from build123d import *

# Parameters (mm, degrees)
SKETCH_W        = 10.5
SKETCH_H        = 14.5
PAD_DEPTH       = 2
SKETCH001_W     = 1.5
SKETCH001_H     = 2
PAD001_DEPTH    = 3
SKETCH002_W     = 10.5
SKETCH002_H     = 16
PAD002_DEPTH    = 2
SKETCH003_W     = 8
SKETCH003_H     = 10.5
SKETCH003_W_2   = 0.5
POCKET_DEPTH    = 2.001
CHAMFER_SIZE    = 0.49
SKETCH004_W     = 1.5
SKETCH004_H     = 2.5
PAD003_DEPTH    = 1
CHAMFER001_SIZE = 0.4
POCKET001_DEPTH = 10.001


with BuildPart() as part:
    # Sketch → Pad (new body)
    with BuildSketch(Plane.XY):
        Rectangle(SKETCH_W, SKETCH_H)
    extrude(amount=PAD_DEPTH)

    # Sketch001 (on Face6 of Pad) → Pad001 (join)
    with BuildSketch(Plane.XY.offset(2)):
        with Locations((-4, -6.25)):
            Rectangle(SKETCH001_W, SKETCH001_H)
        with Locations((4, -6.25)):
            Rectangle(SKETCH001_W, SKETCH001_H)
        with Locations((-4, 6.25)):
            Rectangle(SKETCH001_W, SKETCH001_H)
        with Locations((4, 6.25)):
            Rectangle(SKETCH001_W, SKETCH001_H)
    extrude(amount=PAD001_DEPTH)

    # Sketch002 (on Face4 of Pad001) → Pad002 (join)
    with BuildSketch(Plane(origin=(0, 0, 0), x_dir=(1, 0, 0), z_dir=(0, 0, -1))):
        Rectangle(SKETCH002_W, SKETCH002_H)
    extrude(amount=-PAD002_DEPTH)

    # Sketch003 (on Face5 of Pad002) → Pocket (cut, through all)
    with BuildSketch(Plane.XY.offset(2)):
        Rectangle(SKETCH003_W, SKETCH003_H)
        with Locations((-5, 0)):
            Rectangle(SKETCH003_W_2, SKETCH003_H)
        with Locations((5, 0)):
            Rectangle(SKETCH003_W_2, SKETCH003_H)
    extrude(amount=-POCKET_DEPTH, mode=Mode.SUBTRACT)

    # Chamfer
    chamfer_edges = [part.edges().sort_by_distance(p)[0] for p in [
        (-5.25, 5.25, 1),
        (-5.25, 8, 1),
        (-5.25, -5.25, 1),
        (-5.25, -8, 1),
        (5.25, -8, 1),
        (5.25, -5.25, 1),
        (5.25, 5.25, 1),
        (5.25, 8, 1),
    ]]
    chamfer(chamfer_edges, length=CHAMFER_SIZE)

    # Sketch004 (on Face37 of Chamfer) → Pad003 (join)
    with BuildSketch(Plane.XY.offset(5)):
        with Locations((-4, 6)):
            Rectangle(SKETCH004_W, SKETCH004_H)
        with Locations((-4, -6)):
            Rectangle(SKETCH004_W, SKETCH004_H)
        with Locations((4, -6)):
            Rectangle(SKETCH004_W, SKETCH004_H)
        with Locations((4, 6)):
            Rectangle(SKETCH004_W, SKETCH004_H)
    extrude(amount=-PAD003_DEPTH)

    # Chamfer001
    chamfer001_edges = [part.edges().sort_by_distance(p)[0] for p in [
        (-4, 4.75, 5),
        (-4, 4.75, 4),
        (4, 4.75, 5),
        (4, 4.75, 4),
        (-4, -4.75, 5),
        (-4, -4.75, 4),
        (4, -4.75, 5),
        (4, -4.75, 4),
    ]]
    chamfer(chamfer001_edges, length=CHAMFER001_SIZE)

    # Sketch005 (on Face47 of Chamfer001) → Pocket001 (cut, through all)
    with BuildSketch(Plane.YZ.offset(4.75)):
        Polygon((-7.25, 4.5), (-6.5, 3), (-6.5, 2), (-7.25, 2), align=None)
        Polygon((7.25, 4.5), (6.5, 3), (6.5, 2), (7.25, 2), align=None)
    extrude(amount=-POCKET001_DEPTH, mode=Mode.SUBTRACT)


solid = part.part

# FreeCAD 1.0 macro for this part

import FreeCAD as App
import Part
import Sketcher


def edges_at(feature, points):
    """Names of the edges that pass closest to the given points."""
    edges = feature.Shape.Edges
    near = lambda p: min(range(len(edges)), key=lambda i: edges[i].distToShape(Part.Vertex(*p))[0])
    return sorted({f"Edge{near(p) + 1}" for p in points})

doc = App.newDocument("Part")
body = doc.addObject("PartDesign::Body", "Body")

sketch1 = body.newObject("Sketcher::SketchObject", "Sketch")
sketch1.AttachmentSupport = (doc.getObject("XY_Plane"), [""])
sketch1.MapMode = "FlatFace"
sketch1.addGeometry([
    Part.LineSegment(App.Vector(-5, 7, 0), App.Vector(-5, -7, 0)),
    Part.LineSegment(App.Vector(-5, -7, 0), App.Vector(5, -7, 0)),
    Part.LineSegment(App.Vector(5, -7, 0), App.Vector(5, 7, 0)),
    Part.LineSegment(App.Vector(5, 7, 0), App.Vector(-5, 7, 0)),
], False)
sketch1.addConstraint([
    Sketcher.Constraint("Coincident", 0, 2, 1, 1),
    Sketcher.Constraint("Coincident", 1, 2, 2, 1),
    Sketcher.Constraint("Coincident", 2, 2, 3, 1),
    Sketcher.Constraint("Coincident", 3, 2, 0, 1),
    Sketcher.Constraint("Vertical", 0),
    Sketcher.Constraint("Horizontal", 1),
    Sketcher.Constraint("Vertical", 2),
    Sketcher.Constraint("Horizontal", 3),
    Sketcher.Constraint("Symmetric", 0, 2, 2, 2, -1, 1),
    Sketcher.Constraint("DistanceX", 1, 1, 1, 2, 10.5),
    Sketcher.Constraint("DistanceY", 0, 2, 0, 1, 14.5),
])
pad1 = body.newObject("PartDesign::Pad", "Pad")
pad1.Profile = sketch1
pad1.Length = 2

sketch2 = body.newObject("Sketcher::SketchObject", "Sketch001")
sketch2.AttachmentSupport = (doc.getObject("XY_Plane"), [""])
sketch2.MapMode = "FlatFace"
sketch2.AttachmentOffset = App.Placement(App.Vector(0, 0, 2), App.Rotation())
sketch2.addGeometry([
    Part.LineSegment(App.Vector(-4.8, -5.2, 0), App.Vector(-4.8, -7.2, 0)),
    Part.LineSegment(App.Vector(-4.8, -7.2, 0), App.Vector(-3.2, -7.2, 0)),
    Part.LineSegment(App.Vector(-3.2, -7.2, 0), App.Vector(-3.2, -5.2, 0)),
    Part.LineSegment(App.Vector(-3.2, -5.2, 0), App.Vector(-4.8, -5.2, 0)),
    Part.LineSegment(App.Vector(3.2, -5.2, 0), App.Vector(3.2, -7.2, 0)),
    Part.LineSegment(App.Vector(3.2, -7.2, 0), App.Vector(4.8, -7.2, 0)),
    Part.LineSegment(App.Vector(4.8, -7.2, 0), App.Vector(4.8, -5.2, 0)),
    Part.LineSegment(App.Vector(4.8, -5.2, 0), App.Vector(3.2, -5.2, 0)),
    Part.LineSegment(App.Vector(-4.8, 7.2, 0), App.Vector(-4.8, 5.2, 0)),
    Part.LineSegment(App.Vector(-4.8, 5.2, 0), App.Vector(-3.2, 5.2, 0)),
    Part.LineSegment(App.Vector(-3.2, 5.2, 0), App.Vector(-3.2, 7.2, 0)),
    Part.LineSegment(App.Vector(-3.2, 7.2, 0), App.Vector(-4.8, 7.2, 0)),
    Part.LineSegment(App.Vector(3.2, 7.2, 0), App.Vector(3.2, 5.2, 0)),
    Part.LineSegment(App.Vector(3.2, 5.2, 0), App.Vector(4.8, 5.2, 0)),
    Part.LineSegment(App.Vector(4.8, 5.2, 0), App.Vector(4.8, 7.2, 0)),
    Part.LineSegment(App.Vector(4.8, 7.2, 0), App.Vector(3.2, 7.2, 0)),
], False)
sketch2.addConstraint([
    Sketcher.Constraint("Coincident", 0, 2, 1, 1),
    Sketcher.Constraint("Coincident", 1, 2, 2, 1),
    Sketcher.Constraint("Coincident", 2, 2, 3, 1),
    Sketcher.Constraint("Coincident", 3, 2, 0, 1),
    Sketcher.Constraint("Coincident", 4, 2, 5, 1),
    Sketcher.Constraint("Coincident", 5, 2, 6, 1),
    Sketcher.Constraint("Coincident", 6, 2, 7, 1),
    Sketcher.Constraint("Coincident", 7, 2, 4, 1),
    Sketcher.Constraint("Coincident", 8, 2, 9, 1),
    Sketcher.Constraint("Coincident", 9, 2, 10, 1),
    Sketcher.Constraint("Coincident", 10, 2, 11, 1),
    Sketcher.Constraint("Coincident", 11, 2, 8, 1),
    Sketcher.Constraint("Coincident", 12, 2, 13, 1),
    Sketcher.Constraint("Coincident", 13, 2, 14, 1),
    Sketcher.Constraint("Coincident", 14, 2, 15, 1),
    Sketcher.Constraint("Coincident", 15, 2, 12, 1),
    Sketcher.Constraint("Vertical", 0),
    Sketcher.Constraint("Horizontal", 1),
    Sketcher.Constraint("Vertical", 2),
    Sketcher.Constraint("Horizontal", 3),
    Sketcher.Constraint("Vertical", 4),
    Sketcher.Constraint("Horizontal", 5),
    Sketcher.Constraint("Vertical", 6),
    Sketcher.Constraint("Horizontal", 7),
    Sketcher.Constraint("Vertical", 8),
    Sketcher.Constraint("Horizontal", 9),
    Sketcher.Constraint("Vertical", 10),
    Sketcher.Constraint("Horizontal", 11),
    Sketcher.Constraint("Vertical", 12),
    Sketcher.Constraint("Horizontal", 13),
    Sketcher.Constraint("Vertical", 14),
    Sketcher.Constraint("Horizontal", 15),
    Sketcher.Constraint("Symmetric", 6, 2, 8, 2, -1, 1),
    Sketcher.Constraint("Symmetric", 4, 2, 10, 2, -1, 1),
    Sketcher.Constraint("Symmetric", 2, 2, 12, 2, -1, 1),
    Sketcher.Constraint("Symmetric", 0, 2, 14, 2, -1, 1),
    Sketcher.Constraint("Symmetric", 1, 2, 4, 2, -2),
    Sketcher.Constraint("Symmetric", 3, 2, 6, 2, -2),
    Sketcher.Constraint("DistanceY", 0, 2, 0, 1, 2.0),
    Sketcher.Constraint("DistanceX", 1, 1, 1, 2, 1.5),
    Sketcher.Constraint("DistanceX", 0, 2, 4, 2, 8.0),
    Sketcher.Constraint("DistanceY", 3, 2, 8, 2, 10.5),
])
pad2 = body.newObject("PartDesign::Pad", "Pad001")
pad2.Profile = sketch2
pad2.Length = 3

sketch3 = body.newObject("Sketcher::SketchObject", "Sketch002")
sketch3.AttachmentSupport = (doc.getObject("XY_Plane"), [""])
sketch3.MapMode = "FlatFace"
sketch3.addGeometry([
    Part.LineSegment(App.Vector(-5, -8, 0), App.Vector(-5, 8, 0)),
    Part.LineSegment(App.Vector(-5, 8, 0), App.Vector(5, 8, 0)),
    Part.LineSegment(App.Vector(5, 8, 0), App.Vector(5, -8, 0)),
    Part.LineSegment(App.Vector(5, -8, 0), App.Vector(-5, -8, 0)),
], False)
sketch3.addConstraint([
    Sketcher.Constraint("Coincident", 0, 2, 1, 1),
    Sketcher.Constraint("Coincident", 1, 2, 2, 1),
    Sketcher.Constraint("Coincident", 2, 2, 3, 1),
    Sketcher.Constraint("Coincident", 3, 2, 0, 1),
    Sketcher.Constraint("Vertical", 0),
    Sketcher.Constraint("Horizontal", 1),
    Sketcher.Constraint("Vertical", 2),
    Sketcher.Constraint("Horizontal", 3),
    Sketcher.Constraint("Symmetric", 0, 2, 2, 2, -1, 1),
    Sketcher.Constraint("DistanceY", 0, 1, 0, 2, 16.0),
    Sketcher.Constraint("DistanceX", 1, 1, 1, 2, 10.5),
])
pad3 = body.newObject("PartDesign::Pad", "Pad002")
pad3.Profile = sketch3
pad3.Length = 2

sketch4 = body.newObject("Sketcher::SketchObject", "Sketch003")
sketch4.AttachmentSupport = (doc.getObject("XY_Plane"), [""])
sketch4.MapMode = "FlatFace"
sketch4.AttachmentOffset = App.Placement(App.Vector(0, 0, 2), App.Rotation())
sketch4.addGeometry([
    Part.LineSegment(App.Vector(-4, 5.2, 0), App.Vector(-4, -5.2, 0)),
    Part.LineSegment(App.Vector(-4, -5.2, 0), App.Vector(4, -5.2, 0)),
    Part.LineSegment(App.Vector(4, -5.2, 0), App.Vector(4, 5.2, 0)),
    Part.LineSegment(App.Vector(4, 5.2, 0), App.Vector(-4, 5.2, 0)),
    Part.LineSegment(App.Vector(-5.2, 5.2, 0), App.Vector(-5.2, -5.2, 0)),
    Part.LineSegment(App.Vector(-5.2, -5.2, 0), App.Vector(-4.8, -5.2, 0)),
    Part.LineSegment(App.Vector(-4.8, -5.2, 0), App.Vector(-4.8, 5.2, 0)),
    Part.LineSegment(App.Vector(-4.8, 5.2, 0), App.Vector(-5.2, 5.2, 0)),
    Part.LineSegment(App.Vector(4.8, 5.2, 0), App.Vector(4.8, -5.2, 0)),
    Part.LineSegment(App.Vector(4.8, -5.2, 0), App.Vector(5.2, -5.2, 0)),
    Part.LineSegment(App.Vector(5.2, -5.2, 0), App.Vector(5.2, 5.2, 0)),
    Part.LineSegment(App.Vector(5.2, 5.2, 0), App.Vector(4.8, 5.2, 0)),
], False)
sketch4.addConstraint([
    Sketcher.Constraint("Coincident", 0, 2, 1, 1),
    Sketcher.Constraint("Coincident", 1, 2, 2, 1),
    Sketcher.Constraint("Coincident", 2, 2, 3, 1),
    Sketcher.Constraint("Coincident", 3, 2, 0, 1),
    Sketcher.Constraint("Coincident", 4, 2, 5, 1),
    Sketcher.Constraint("Coincident", 5, 2, 6, 1),
    Sketcher.Constraint("Coincident", 6, 2, 7, 1),
    Sketcher.Constraint("Coincident", 7, 2, 4, 1),
    Sketcher.Constraint("Coincident", 8, 2, 9, 1),
    Sketcher.Constraint("Coincident", 9, 2, 10, 1),
    Sketcher.Constraint("Coincident", 10, 2, 11, 1),
    Sketcher.Constraint("Coincident", 11, 2, 8, 1),
    Sketcher.Constraint("Vertical", 0),
    Sketcher.Constraint("Horizontal", 1),
    Sketcher.Constraint("Vertical", 2),
    Sketcher.Constraint("Horizontal", 3),
    Sketcher.Constraint("Vertical", 4),
    Sketcher.Constraint("Horizontal", 5),
    Sketcher.Constraint("Vertical", 6),
    Sketcher.Constraint("Horizontal", 7),
    Sketcher.Constraint("Vertical", 8),
    Sketcher.Constraint("Horizontal", 9),
    Sketcher.Constraint("Vertical", 10),
    Sketcher.Constraint("Horizontal", 11),
    Sketcher.Constraint("Symmetric", 0, 2, 2, 2, -1, 1),
    Sketcher.Constraint("Symmetric", 6, 2, 8, 2, -1, 1),
    Sketcher.Constraint("Symmetric", 4, 2, 10, 2, -1, 1),
    Sketcher.Constraint("Horizontal", 1, 2, 4, 2),
    Sketcher.Constraint("Horizontal", 3, 2, 6, 2),
    Sketcher.Constraint("DistanceX", 1, 1, 1, 2, 8.0),
    Sketcher.Constraint("DistanceX", 5, 1, 5, 2, 0.5),
    Sketcher.Constraint("DistanceY", 0, 2, 0, 1, 10.5),
    Sketcher.Constraint("DistanceX", 4, 2, 8, 2, 10.0),
])
pocket1 = body.newObject("PartDesign::Pocket", "Pocket")
pocket1.Profile = sketch4
pocket1.Type = "ThroughAll"
doc.recompute()

chamfer = body.newObject("PartDesign::Chamfer", "Chamfer")
chamfer.Base = (pocket1, edges_at(pocket1, [
    (-5.25, 5.25, 1),
    (-5.25, 8, 1),
    (-5.25, -5.25, 1),
    (-5.25, -8, 1),
    (5.25, -8, 1),
    (5.25, -5.25, 1),
    (5.25, 5.25, 1),
    (5.25, 8, 1),
]))
chamfer.Size = 0.49

sketch5 = body.newObject("Sketcher::SketchObject", "Sketch004")
sketch5.AttachmentSupport = (doc.getObject("XY_Plane"), [""])
sketch5.MapMode = "FlatFace"
sketch5.AttachmentOffset = App.Placement(App.Vector(0, 0, 5), App.Rotation())
sketch5.addGeometry([
    Part.LineSegment(App.Vector(-4.8, 7.2, 0), App.Vector(-4.8, 4.8, 0)),
    Part.LineSegment(App.Vector(-4.8, 4.8, 0), App.Vector(-3.2, 4.8, 0)),
    Part.LineSegment(App.Vector(-3.2, 4.8, 0), App.Vector(-3.2, 7.2, 0)),
    Part.LineSegment(App.Vector(-3.2, 7.2, 0), App.Vector(-4.8, 7.2, 0)),
    Part.LineSegment(App.Vector(-4.8, -4.8, 0), App.Vector(-4.8, -7.2, 0)),
    Part.LineSegment(App.Vector(-4.8, -7.2, 0), App.Vector(-3.2, -7.2, 0)),
    Part.LineSegment(App.Vector(-3.2, -7.2, 0), App.Vector(-3.2, -4.8, 0)),
    Part.LineSegment(App.Vector(-3.2, -4.8, 0), App.Vector(-4.8, -4.8, 0)),
    Part.LineSegment(App.Vector(3.2, -4.8, 0), App.Vector(3.2, -7.2, 0)),
    Part.LineSegment(App.Vector(3.2, -7.2, 0), App.Vector(4.8, -7.2, 0)),
    Part.LineSegment(App.Vector(4.8, -7.2, 0), App.Vector(4.8, -4.8, 0)),
    Part.LineSegment(App.Vector(4.8, -4.8, 0), App.Vector(3.2, -4.8, 0)),
    Part.LineSegment(App.Vector(3.2, 7.2, 0), App.Vector(3.2, 4.8, 0)),
    Part.LineSegment(App.Vector(3.2, 4.8, 0), App.Vector(4.8, 4.8, 0)),
    Part.LineSegment(App.Vector(4.8, 4.8, 0), App.Vector(4.8, 7.2, 0)),
    Part.LineSegment(App.Vector(4.8, 7.2, 0), App.Vector(3.2, 7.2, 0)),
], False)
sketch5.addConstraint([
    Sketcher.Constraint("Coincident", 0, 2, 1, 1),
    Sketcher.Constraint("Coincident", 1, 2, 2, 1),
    Sketcher.Constraint("Coincident", 2, 2, 3, 1),
    Sketcher.Constraint("Coincident", 3, 2, 0, 1),
    Sketcher.Constraint("Coincident", 4, 2, 5, 1),
    Sketcher.Constraint("Coincident", 5, 2, 6, 1),
    Sketcher.Constraint("Coincident", 6, 2, 7, 1),
    Sketcher.Constraint("Coincident", 7, 2, 4, 1),
    Sketcher.Constraint("Coincident", 8, 2, 9, 1),
    Sketcher.Constraint("Coincident", 9, 2, 10, 1),
    Sketcher.Constraint("Coincident", 10, 2, 11, 1),
    Sketcher.Constraint("Coincident", 11, 2, 8, 1),
    Sketcher.Constraint("Coincident", 12, 2, 13, 1),
    Sketcher.Constraint("Coincident", 13, 2, 14, 1),
    Sketcher.Constraint("Coincident", 14, 2, 15, 1),
    Sketcher.Constraint("Coincident", 15, 2, 12, 1),
    Sketcher.Constraint("Vertical", 0),
    Sketcher.Constraint("Horizontal", 1),
    Sketcher.Constraint("Vertical", 2),
    Sketcher.Constraint("Horizontal", 3),
    Sketcher.Constraint("Vertical", 4),
    Sketcher.Constraint("Horizontal", 5),
    Sketcher.Constraint("Vertical", 6),
    Sketcher.Constraint("Horizontal", 7),
    Sketcher.Constraint("Vertical", 8),
    Sketcher.Constraint("Horizontal", 9),
    Sketcher.Constraint("Vertical", 10),
    Sketcher.Constraint("Horizontal", 11),
    Sketcher.Constraint("Vertical", 12),
    Sketcher.Constraint("Horizontal", 13),
    Sketcher.Constraint("Vertical", 14),
    Sketcher.Constraint("Horizontal", 15),
    Sketcher.Constraint("Symmetric", 2, 2, 8, 2, -1, 1),
    Sketcher.Constraint("Symmetric", 0, 2, 10, 2, -1, 1),
    Sketcher.Constraint("Symmetric", 6, 2, 12, 2, -1, 1),
    Sketcher.Constraint("Symmetric", 4, 2, 14, 2, -1, 1),
    Sketcher.Constraint("Symmetric", 5, 2, 8, 2, -2),
    Sketcher.Constraint("Symmetric", 7, 2, 10, 2, -2),
    Sketcher.Constraint("DistanceX", 1, 1, 1, 2, 1.5),
    Sketcher.Constraint("DistanceY", 0, 2, 0, 1, 2.5),
    Sketcher.Constraint("DistanceY", 4, 2, 0, 2, 12.0),
    Sketcher.Constraint("DistanceX", 4, 2, 8, 2, 8.0),
])
pad4 = body.newObject("PartDesign::Pad", "Pad003")
pad4.Profile = sketch5
pad4.Length = 1
pad4.Reversed = True
doc.recompute()

chamfer2 = body.newObject("PartDesign::Chamfer", "Chamfer001")
chamfer2.Base = (pad4, edges_at(pad4, [
    (-4, 4.75, 5),
    (-4, 4.75, 4),
    (4, 4.75, 5),
    (4, 4.75, 4),
    (-4, -4.75, 5),
    (-4, -4.75, 4),
    (4, -4.75, 5),
    (4, -4.75, 4),
]))
chamfer2.Size = 0.4

sketch6 = body.newObject("Sketcher::SketchObject", "Sketch005")
sketch6.AttachmentSupport = (doc.getObject("YZ_Plane"), [""])
sketch6.MapMode = "FlatFace"
sketch6.AttachmentOffset = App.Placement(App.Vector(0, 0, 4.75), App.Rotation())
sketch6.addGeometry([
    Part.LineSegment(App.Vector(-6.5, 3, 0), App.Vector(-7.2, 4.5, 0)),
    Part.LineSegment(App.Vector(-7.2, 4.5, 0), App.Vector(-7.2, 2, 0)),
    Part.LineSegment(App.Vector(-7.2, 2, 0), App.Vector(-6.5, 2, 0)),
    Part.LineSegment(App.Vector(-6.5, 2, 0), App.Vector(-6.5, 3, 0)),
    Part.LineSegment(App.Vector(7.2, 4.5, 0), App.Vector(6.5, 3, 0)),
    Part.LineSegment(App.Vector(6.5, 3, 0), App.Vector(6.5, 2, 0)),
    Part.LineSegment(App.Vector(6.5, 2, 0), App.Vector(7.2, 2, 0)),
    Part.LineSegment(App.Vector(7.2, 2, 0), App.Vector(7.2, 4.5, 0)),
], False)
sketch6.addConstraint([
    Sketcher.Constraint("Coincident", 0, 2, 1, 1),
    Sketcher.Constraint("Coincident", 1, 2, 2, 1),
    Sketcher.Constraint("Coincident", 2, 2, 3, 1),
    Sketcher.Constraint("Coincident", 3, 2, 0, 1),
    Sketcher.Constraint("Coincident", 4, 2, 5, 1),
    Sketcher.Constraint("Coincident", 5, 2, 6, 1),
    Sketcher.Constraint("Coincident", 6, 2, 7, 1),
    Sketcher.Constraint("Coincident", 7, 2, 4, 1),
    Sketcher.Constraint("Vertical", 1),
    Sketcher.Constraint("Horizontal", 2),
    Sketcher.Constraint("Vertical", 3),
    Sketcher.Constraint("Vertical", 5),
    Sketcher.Constraint("Horizontal", 6),
    Sketcher.Constraint("Vertical", 7),
    Sketcher.Constraint("Symmetric", 3, 2, 4, 2, -2),
    Sketcher.Constraint("Symmetric", 1, 2, 6, 2, -2),
    Sketcher.Constraint("Horizontal", 0, 2, 7, 2),
    Sketcher.Constraint("DistanceY", 3, 1, 3, 2, 1.0),
    Sketcher.Constraint("DistanceY", 1, 2, 1, 1, 2.5),
    Sketcher.Constraint("DistanceY", -1, 1, 1, 2, 2.0),
    Sketcher.Constraint("DistanceX", 3, 2, 4, 2, 13.0),
    Sketcher.Constraint("DistanceX", 2, 1, 2, 2, 0.75),
])
pocket2 = body.newObject("PartDesign::Pocket", "Pocket001")
pocket2.Profile = sketch6
pocket2.Type = "ThroughAll"

doc.recompute()
